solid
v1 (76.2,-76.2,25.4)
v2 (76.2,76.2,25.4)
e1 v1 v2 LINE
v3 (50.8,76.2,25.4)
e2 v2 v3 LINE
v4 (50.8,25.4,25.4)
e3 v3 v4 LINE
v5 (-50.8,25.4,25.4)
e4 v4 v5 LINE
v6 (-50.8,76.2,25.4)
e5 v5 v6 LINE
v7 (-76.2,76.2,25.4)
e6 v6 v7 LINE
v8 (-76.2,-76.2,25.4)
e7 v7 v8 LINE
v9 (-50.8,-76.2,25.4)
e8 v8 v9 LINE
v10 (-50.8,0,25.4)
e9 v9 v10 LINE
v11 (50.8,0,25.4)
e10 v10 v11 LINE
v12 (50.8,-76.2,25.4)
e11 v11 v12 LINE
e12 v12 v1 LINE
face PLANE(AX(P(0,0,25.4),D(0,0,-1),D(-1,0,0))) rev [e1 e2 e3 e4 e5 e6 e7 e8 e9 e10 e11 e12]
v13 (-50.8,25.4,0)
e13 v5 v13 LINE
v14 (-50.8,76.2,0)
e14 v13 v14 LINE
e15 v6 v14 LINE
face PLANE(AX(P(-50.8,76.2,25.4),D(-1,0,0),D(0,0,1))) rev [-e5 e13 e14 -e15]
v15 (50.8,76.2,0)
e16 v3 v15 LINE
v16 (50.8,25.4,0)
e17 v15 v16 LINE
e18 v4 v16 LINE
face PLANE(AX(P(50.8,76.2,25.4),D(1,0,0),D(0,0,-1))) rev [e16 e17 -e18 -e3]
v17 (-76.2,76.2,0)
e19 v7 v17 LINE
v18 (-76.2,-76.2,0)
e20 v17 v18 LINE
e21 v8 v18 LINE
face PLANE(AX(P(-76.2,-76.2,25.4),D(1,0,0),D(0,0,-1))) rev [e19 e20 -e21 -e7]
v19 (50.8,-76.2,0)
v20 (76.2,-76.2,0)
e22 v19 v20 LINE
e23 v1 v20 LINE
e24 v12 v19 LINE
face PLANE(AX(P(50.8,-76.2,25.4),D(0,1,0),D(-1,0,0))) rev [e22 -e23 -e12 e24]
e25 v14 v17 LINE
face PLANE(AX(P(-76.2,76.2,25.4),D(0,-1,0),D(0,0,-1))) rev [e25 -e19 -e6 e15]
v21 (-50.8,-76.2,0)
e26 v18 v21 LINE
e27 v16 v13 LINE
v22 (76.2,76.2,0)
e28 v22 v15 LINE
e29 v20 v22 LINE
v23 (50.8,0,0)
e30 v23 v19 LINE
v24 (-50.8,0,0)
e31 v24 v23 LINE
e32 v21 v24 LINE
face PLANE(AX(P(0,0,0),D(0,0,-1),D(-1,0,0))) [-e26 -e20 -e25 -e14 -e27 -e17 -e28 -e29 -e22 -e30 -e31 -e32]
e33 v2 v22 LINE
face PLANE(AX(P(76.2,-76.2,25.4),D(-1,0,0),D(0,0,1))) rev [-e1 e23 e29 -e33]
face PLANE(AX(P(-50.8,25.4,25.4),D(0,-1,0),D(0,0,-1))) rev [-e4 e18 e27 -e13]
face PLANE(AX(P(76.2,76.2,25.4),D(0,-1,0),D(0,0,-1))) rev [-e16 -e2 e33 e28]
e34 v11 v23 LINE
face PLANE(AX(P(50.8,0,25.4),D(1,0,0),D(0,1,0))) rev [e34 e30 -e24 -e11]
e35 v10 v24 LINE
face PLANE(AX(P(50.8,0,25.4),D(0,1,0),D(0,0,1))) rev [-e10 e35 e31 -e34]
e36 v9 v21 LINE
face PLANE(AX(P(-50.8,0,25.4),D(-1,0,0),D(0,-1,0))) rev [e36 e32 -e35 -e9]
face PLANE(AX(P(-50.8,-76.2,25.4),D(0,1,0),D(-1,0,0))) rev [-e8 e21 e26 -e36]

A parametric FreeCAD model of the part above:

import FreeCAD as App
import Part
import Sketcher
Q = App.Units.Quantity

doc = App.newDocument("Part")
body = doc.addObject("PartDesign::Body", "Body")

sketch1 = doc.addObject("Sketcher::SketchObject", "Sketch")
body.addObject(sketch1)
sketch1.AttachmentSupport = (doc.XY_Plane, [""])
sketch1.MapMode = "FlatFace"
sketch1.addGeometry([
    Part.LineSegment(App.Vector(-51, 0, 0), App.Vector(51, 0, 0)),
    Part.LineSegment(App.Vector(51, 0, 0), App.Vector(51, -76, 0)),
    Part.LineSegment(App.Vector(51, -76, 0), App.Vector(76, -76, 0)),
    Part.LineSegment(App.Vector(76, -76, 0), App.Vector(76, 76, 0)),
    Part.LineSegment(App.Vector(76, 76, 0), App.Vector(51, 76, 0)),
    Part.LineSegment(App.Vector(51, 76, 0), App.Vector(51, 25, 0)),
    Part.LineSegment(App.Vector(51, 25, 0), App.Vector(-51, 25, 0)),
    Part.LineSegment(App.Vector(-51, 25, 0), App.Vector(-51, 76, 0)),
    Part.LineSegment(App.Vector(-51, 76, 0), App.Vector(-76, 76, 0)),
    Part.LineSegment(App.Vector(-76, 76, 0), App.Vector(-76, -76, 0)),
    Part.LineSegment(App.Vector(-76, -76, 0), App.Vector(-51, -76, 0)),
    Part.LineSegment(App.Vector(-51, -76, 0), App.Vector(-51, 0, 0)),
], False)
sketch1.addConstraint([
    Sketcher.Constraint("Coincident", 0, 2, 1, 1),
    Sketcher.Constraint("Coincident", 1, 2, 2, 1),
    Sketcher.Constraint("Coincident", 2, 2, 3, 1),
    Sketcher.Constraint("Coincident", 3, 2, 4, 1),
    Sketcher.Constraint("Coincident", 4, 2, 5, 1),
    Sketcher.Constraint("Coincident", 5, 2, 6, 1),
    Sketcher.Constraint("Coincident", 6, 2, 7, 1),
    Sketcher.Constraint("Coincident", 7, 2, 8, 1),
    Sketcher.Constraint("Coincident", 8, 2, 9, 1),
    Sketcher.Constraint("Coincident", 9, 2, 10, 1),
    Sketcher.Constraint("Coincident", 10, 2, 11, 1),
    Sketcher.Constraint("Coincident", 11, 2, 0, 1),
    Sketcher.Constraint("Horizontal", 0),
    Sketcher.Constraint("Vertical", 1),
    Sketcher.Constraint("Horizontal", 2),
    Sketcher.Constraint("Vertical", 3),
    Sketcher.Constraint("Horizontal", 4),
    Sketcher.Constraint("Vertical", 5),
    Sketcher.Constraint("Horizontal", 6),
    Sketcher.Constraint("Vertical", 7),
    Sketcher.Constraint("Horizontal", 8),
    Sketcher.Constraint("Vertical", 9),
    Sketcher.Constraint("Horizontal", 10),
    Sketcher.Constraint("Vertical", 11),
    Sketcher.Constraint("Symmetric", 1, 2, 7, 2, -1, 1),
    Sketcher.Constraint("Symmetric", 3, 2, 9, 2, -1, 1),
    Sketcher.Constraint("Symmetric", 0, 2, 11, 2, -1, 1),
    Sketcher.Constraint("Symmetric", 4, 2, 7, 2, -2),
    Sketcher.Constraint("DistanceX", 0, 1, 0, 2, Q("4 in")),
    Sketcher.Constraint("DistanceX", 2, 1, 2, 2, Q("1 in")),
    Sketcher.Constraint("DistanceY", 1, 2, 1, 1, Q("3 in")),
    Sketcher.Constraint("DistanceY", 5, 2, 5, 1, Q("2 in")),
])
pad1 = doc.addObject("PartDesign::Pad", "Pad")
body.addObject(pad1)
pad1.Profile = sketch1
pad1.Length = Q("1 in")

doc.recompute()
